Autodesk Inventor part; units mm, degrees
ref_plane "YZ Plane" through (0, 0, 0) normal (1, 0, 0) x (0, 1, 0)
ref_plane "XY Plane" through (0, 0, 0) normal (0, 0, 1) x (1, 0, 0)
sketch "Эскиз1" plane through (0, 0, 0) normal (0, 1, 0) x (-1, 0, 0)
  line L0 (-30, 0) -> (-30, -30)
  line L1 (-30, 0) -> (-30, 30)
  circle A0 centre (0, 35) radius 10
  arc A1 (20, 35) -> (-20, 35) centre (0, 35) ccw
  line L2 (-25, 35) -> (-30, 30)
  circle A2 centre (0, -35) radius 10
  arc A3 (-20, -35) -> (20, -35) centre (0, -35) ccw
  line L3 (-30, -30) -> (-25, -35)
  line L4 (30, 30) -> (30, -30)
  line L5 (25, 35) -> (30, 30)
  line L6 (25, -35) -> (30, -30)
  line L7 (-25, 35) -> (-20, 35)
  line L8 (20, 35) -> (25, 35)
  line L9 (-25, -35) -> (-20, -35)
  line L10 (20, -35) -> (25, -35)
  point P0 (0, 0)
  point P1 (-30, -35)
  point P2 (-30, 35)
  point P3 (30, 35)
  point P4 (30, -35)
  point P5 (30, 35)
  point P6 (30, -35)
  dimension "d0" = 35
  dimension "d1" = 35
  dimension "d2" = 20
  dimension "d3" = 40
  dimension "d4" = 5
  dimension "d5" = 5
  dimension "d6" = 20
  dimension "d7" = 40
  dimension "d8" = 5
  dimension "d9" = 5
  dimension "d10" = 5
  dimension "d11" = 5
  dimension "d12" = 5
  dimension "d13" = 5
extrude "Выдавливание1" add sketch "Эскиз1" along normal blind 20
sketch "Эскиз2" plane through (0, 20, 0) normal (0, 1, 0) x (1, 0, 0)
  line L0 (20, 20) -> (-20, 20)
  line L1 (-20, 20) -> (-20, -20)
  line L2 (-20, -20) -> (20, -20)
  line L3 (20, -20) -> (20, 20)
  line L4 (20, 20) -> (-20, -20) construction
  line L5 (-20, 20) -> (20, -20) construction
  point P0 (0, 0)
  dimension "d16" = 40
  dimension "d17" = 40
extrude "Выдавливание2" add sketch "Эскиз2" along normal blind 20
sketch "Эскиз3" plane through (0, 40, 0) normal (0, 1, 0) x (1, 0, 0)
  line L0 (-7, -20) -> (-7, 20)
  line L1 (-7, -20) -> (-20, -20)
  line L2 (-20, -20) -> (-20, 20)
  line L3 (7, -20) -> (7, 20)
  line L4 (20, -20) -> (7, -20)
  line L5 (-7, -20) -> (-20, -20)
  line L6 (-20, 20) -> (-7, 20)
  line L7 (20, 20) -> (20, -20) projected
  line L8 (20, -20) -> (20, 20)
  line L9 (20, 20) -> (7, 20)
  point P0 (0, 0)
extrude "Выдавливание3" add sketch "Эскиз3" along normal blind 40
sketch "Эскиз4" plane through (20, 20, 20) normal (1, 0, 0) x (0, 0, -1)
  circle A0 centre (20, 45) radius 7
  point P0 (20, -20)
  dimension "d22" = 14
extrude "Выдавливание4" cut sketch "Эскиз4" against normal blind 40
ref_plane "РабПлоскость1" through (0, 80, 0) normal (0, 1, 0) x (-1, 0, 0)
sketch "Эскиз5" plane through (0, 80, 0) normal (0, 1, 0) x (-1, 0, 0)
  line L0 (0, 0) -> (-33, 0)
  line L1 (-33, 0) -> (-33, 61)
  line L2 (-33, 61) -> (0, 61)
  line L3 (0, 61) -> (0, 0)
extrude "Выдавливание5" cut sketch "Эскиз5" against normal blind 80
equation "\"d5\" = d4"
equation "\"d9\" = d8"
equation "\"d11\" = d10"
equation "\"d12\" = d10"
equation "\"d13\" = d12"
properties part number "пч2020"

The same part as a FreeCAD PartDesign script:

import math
import FreeCAD as App
import Part
import Sketcher
Q = App.Units.Quantity


def add_polygon(sketch, points):
    """Adds a closed chain of lines whose ends are joined by coincident constraints."""
    first, n = sketch.GeometryCount, len(points)
    for a, b in zip(points, points[1:] + points[:1]):
        sketch.addGeometry(Part.LineSegment(App.Vector(*a, 0), App.Vector(*b, 0)), False)
    for i in range(n):
        sketch.addConstraint(Sketcher.Constraint("Coincident", first + i, 2, first + (i + 1) % n, 1))

doc = App.newDocument("Part")
params = doc.addObject("Spreadsheet::Sheet", "Params")
for row, (alias, value) in enumerate([
    ("sketch1_diameter", "20 mm"),
    ("sketch1_radius", "20 mm"),
    ("sketch1_width", "5 mm"),
    ("pad1_length", "20 mm"),
    ("sketch2_width", "40 mm"),
    ("pad2_length", "20 mm"),
    ("sketch3_width", "13 mm"),
    ("sketch3_height", "40 mm"),
    ("pad3_length", "40 mm"),
    ("sketch4_diameter", "14 mm"),
    ("pocket1_length", "40 mm"),
    ("sketch5_width", "33 mm"),
    ("sketch5_height", "61 mm"),
    ("pocket2_length", "80 mm"),
], start=1):
    params.set(f"A{row}", alias)
    params.set(f"B{row}", "=" + value)
    params.setAlias(f"B{row}", alias)

body = doc.addObject("PartDesign::Body", "Body")

# Sketch on XZ plane
sketch1 = doc.addObject("Sketcher::SketchObject", "Sketch")
body.addObject(sketch1)
sketch1.AttachmentSupport = (doc.XZ_Plane, [""])
sketch1.MapMode = "FlatFace"
sketch1.addGeometry([
    Part.LineSegment(App.Vector(30, 30, 0), App.Vector(30, -30, 0)),  # 0
    Part.LineSegment(App.Vector(30, -30, 0), App.Vector(25, -35, 0)),  # 1
    Part.LineSegment(App.Vector(25, -35, 0), App.Vector(20, -35, 0)),  # 2
    Part.ArcOfCircle(Part.Circle(App.Vector(0, -35, 0), App.Vector(0, 0, 1), 20), math.radians(180), math.radians(360)),  # 3
    Part.LineSegment(App.Vector(-20, -35, 0), App.Vector(-25, -35, 0)),  # 4
    Part.LineSegment(App.Vector(-25, -35, 0), App.Vector(-30, -30, 0)),  # 5
    Part.LineSegment(App.Vector(-30, -30, 0), App.Vector(-30, 30, 0)),  # 6
    Part.LineSegment(App.Vector(-30, 30, 0), App.Vector(-25, 35, 0)),  # 7
    Part.LineSegment(App.Vector(-25, 35, 0), App.Vector(-20, 35, 0)),  # 8
    Part.ArcOfCircle(Part.Circle(App.Vector(0, 35, 0), App.Vector(0, 0, 1), 20), math.radians(0), math.radians(180)),  # 9
    Part.LineSegment(App.Vector(20, 35, 0), App.Vector(25, 35, 0)),  # 10
    Part.LineSegment(App.Vector(25, 35, 0), App.Vector(30, 30, 0)),  # 11
    Part.Circle(App.Vector(0, -35, 0), App.Vector(0, 0, 1), 10),  # 12
    Part.Circle(App.Vector(0, 35, 0), App.Vector(0, 0, 1), 10),  # 13
], False)
sketch1.addConstraint([
    Sketcher.Constraint("Coincident", 0, 2, 1, 1),
    Sketcher.Constraint("Coincident", 1, 2, 2, 1),
    Sketcher.Constraint("Coincident", 2, 2, 3, 2),
    Sketcher.Constraint("Coincident", 3, 1, 4, 1),
    Sketcher.Constraint("Coincident", 4, 2, 5, 1),
    Sketcher.Constraint("Coincident", 5, 2, 6, 1),
    Sketcher.Constraint("Coincident", 6, 2, 7, 1),
    Sketcher.Constraint("Coincident", 7, 2, 8, 1),
    Sketcher.Constraint("Coincident", 8, 2, 9, 2),
    Sketcher.Constraint("Coincident", 9, 1, 10, 1),
    Sketcher.Constraint("Coincident", 10, 2, 11, 1),
    Sketcher.Constraint("Coincident", 11, 2, 0, 1),
    Sketcher.Constraint("Vertical", 0),
    Sketcher.Constraint("Horizontal", 2),
    Sketcher.Constraint("Horizontal", 4),
    Sketcher.Constraint("Vertical", 6),
    Sketcher.Constraint("Horizontal", 8),
    Sketcher.Constraint("Horizontal", 10),
    Sketcher.Constraint("Coincident", 12, 3, 3, 3),
    Sketcher.Constraint("Coincident", 13, 3, 9, 3),
    Sketcher.Constraint("Equal", 3, 9),
    Sketcher.Constraint("Equal", 12, 13),
    Sketcher.Constraint("Symmetric", 3, 3, 9, 3, -1, 1),
    Sketcher.Constraint("Symmetric", 0, 2, 6, 2, -1, 1),
    Sketcher.Constraint("Symmetric", 1, 2, 7, 2, -1, 1),
    Sketcher.Constraint("Symmetric", 4, 2, 10, 2, -1, 1),
    Sketcher.Constraint("Symmetric", 2, 2, 3, 1, -2),
    Sketcher.Constraint("Perpendicular", 1, 5),
    Sketcher.Constraint("Perpendicular", 7, 11),
    Sketcher.Constraint("Horizontal", 12, 3, 1, 2),
    Sketcher.Constraint("Horizontal", 0, 2, 5, 2),
    Sketcher.Constraint("Vertical", 4, 2, 7, 2),
    Sketcher.Constraint("Diameter", 12, Q("20 mm")),
    Sketcher.Constraint("Radius", 3, Q("20 mm")),
    Sketcher.Constraint("DistanceX", 2, 2, 2, 1, Q("5 mm")),
    Sketcher.Constraint("DistanceY", 3, 3, -1, 1, Q("35 mm")),
    Sketcher.Constraint("DistanceY", 3, 3, 0, 2, Q("5 mm")),
])
sketch1.setExpression("Constraints[32]", "Params.sketch1_diameter")
sketch1.setExpression("Constraints[33]", "Params.sketch1_radius")
sketch1.setExpression("Constraints[34]", "Params.sketch1_width")
pad1 = doc.addObject("PartDesign::Pad", "Pad")
body.addObject(pad1)
pad1.Profile = sketch1
pad1.setExpression("Length", "Params.pad1_length")
pad1.Reversed = True

# Sketch on XZ plane
sketch2 = doc.addObject("Sketcher::SketchObject", "Sketch001")
body.addObject(sketch2)
sketch2.AttachmentSupport = (doc.XZ_Plane, [""])
sketch2.MapMode = "FlatFace"
sketch2.AttachmentOffset = App.Placement(App.Vector(0, 0, -20), App.Rotation())
add_polygon(sketch2, [(20, 20), (20, -20), (-20, -20), (-20, 20)])  # lines 0-3
sketch2.addConstraint([
    Sketcher.Constraint("Vertical", 0),
    Sketcher.Constraint("Horizontal", 1),
    Sketcher.Constraint("Vertical", 2),
    Sketcher.Constraint("Horizontal", 3),
    Sketcher.Constraint("Symmetric", 0, 2, 2, 2, -1, 1),
    Sketcher.Constraint("Equal", 3, 0),
    Sketcher.Constraint("DistanceX", 1, 2, 1, 1, Q("40 mm")),
])
sketch2.setExpression("Constraints[10]", "Params.sketch2_width")
pad2 = doc.addObject("PartDesign::Pad", "Pad001")
body.addObject(pad2)
pad2.Profile = sketch2
pad2.setExpression("Length", "Params.pad2_length")
pad2.Reversed = True

# Sketch on XZ plane
sketch3 = doc.addObject("Sketcher::SketchObject", "Sketch002")
body.addObject(sketch3)
sketch3.AttachmentSupport = (doc.XZ_Plane, [""])
sketch3.MapMode = "FlatFace"
sketch3.AttachmentOffset = App.Placement(App.Vector(0, 0, -40), App.Rotation())
add_polygon(sketch3, [(-20, 20), (-7, 20), (-7, -20), (-20, -20)])  # lines 0-3
add_polygon(sketch3, [(7, -20), (7, 20), (20, 20), (20, -20)])  # lines 4-7
sketch3.addConstraint([
    Sketcher.Constraint("Horizontal", 0),
    Sketcher.Constraint("Vertical", 1),
    Sketcher.Constraint("Horizontal", 2),
    Sketcher.Constraint("Vertical", 3),
    Sketcher.Constraint("Vertical", 4),
    Sketcher.Constraint("Horizontal", 5),
    Sketcher.Constraint("Vertical", 6),
    Sketcher.Constraint("Horizontal", 7),
    Sketcher.Constraint("Symmetric", 1, 2, 4, 2, -1, 1),
    Sketcher.Constraint("Symmetric", 3, 2, 6, 2, -1, 1),
    Sketcher.Constraint("Horizontal", 3, 2, 4, 2),
    Sketcher.Constraint("DistanceX", 0, 1, 0, 2, Q("13 mm")),
    Sketcher.Constraint("DistanceY", 1, 2, 1, 1, Q("40 mm")),
    Sketcher.Constraint("DistanceX", 0, 2, -1, 1, Q("7 mm")),
])
sketch3.setExpression("Constraints[19]", "Params.sketch3_width")
sketch3.setExpression("Constraints[20]", "Params.sketch3_height")
pad3 = doc.addObject("PartDesign::Pad", "Pad002")
body.addObject(pad3)
pad3.Profile = sketch3
pad3.setExpression("Length", "Params.pad3_length")
pad3.Reversed = True

# Sketch on YZ plane
sketch4 = doc.addObject("Sketcher::SketchObject", "Sketch003")
body.addObject(sketch4)
sketch4.AttachmentSupport = (doc.YZ_Plane, [""])
sketch4.MapMode = "FlatFace"
sketch4.AttachmentOffset = App.Placement(App.Vector(0, 0, 20), App.Rotation())
sketch4.addGeometry(Part.Circle(App.Vector(65, 0, 0), App.Vector(0, 0, 1), 7), False)
sketch4.addConstraint([
    Sketcher.Constraint("PointOnObject", 0, 3, -1),
    Sketcher.Constraint("Diameter", 0, Q("14 mm")),
    Sketcher.Constraint("DistanceX", -1, 1, 0, 3, Q("65 mm")),
])
sketch4.setExpression("Constraints[1]", "Params.sketch4_diameter")
pocket1 = doc.addObject("PartDesign::Pocket", "Pocket")
body.addObject(pocket1)
pocket1.Profile = sketch4
pocket1.setExpression("Length", "Params.pocket1_length")

# Sketch on XZ plane
sketch5 = doc.addObject("Sketcher::SketchObject", "Sketch004")
body.addObject(sketch5)
sketch5.AttachmentSupport = (doc.XZ_Plane, [""])
sketch5.MapMode = "FlatFace"
sketch5.AttachmentOffset = App.Placement(App.Vector(0, 0, -80), App.Rotation())
add_polygon(sketch5, [(33, 0), (0, 0), (0, 61), (33, 61)])  # lines 0-3
sketch5.addConstraint([
    Sketcher.Constraint("Horizontal", 0),
    Sketcher.Constraint("Vertical", 1),
    Sketcher.Constraint("Horizontal", 2),
    Sketcher.Constraint("Vertical", 3),
    Sketcher.Constraint("Coincident", 0, 2, -1, 1),
    Sketcher.Constraint("DistanceX", 0, 2, 0, 1, Q("33 mm")),
    Sketcher.Constraint("DistanceY", 1, 1, 1, 2, Q("61 mm")),
])
sketch5.setExpression("Constraints[9]", "Params.sketch5_width")
sketch5.setExpression("Constraints[10]", "Params.sketch5_height")
pocket2 = doc.addObject("PartDesign::Pocket", "Pocket001")
body.addObject(pocket2)
pocket2.Profile = sketch5
pocket2.setExpression("Length", "Params.pocket2_length")
pocket2.Reversed = True

doc.recompute()
